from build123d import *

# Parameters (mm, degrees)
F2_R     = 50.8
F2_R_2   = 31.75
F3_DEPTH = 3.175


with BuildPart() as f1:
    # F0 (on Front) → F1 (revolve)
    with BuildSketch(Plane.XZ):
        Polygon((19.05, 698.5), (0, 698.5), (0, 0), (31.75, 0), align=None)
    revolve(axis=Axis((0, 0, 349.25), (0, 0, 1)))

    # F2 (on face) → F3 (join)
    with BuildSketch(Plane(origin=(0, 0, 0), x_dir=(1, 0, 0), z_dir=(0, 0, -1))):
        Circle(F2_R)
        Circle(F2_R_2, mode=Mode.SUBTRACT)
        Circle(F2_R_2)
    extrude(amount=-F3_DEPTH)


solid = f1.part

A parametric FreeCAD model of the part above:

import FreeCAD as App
import Part
import Sketcher
from FreeCAD import Vector
Q = App.Units.Quantity

doc = App.newDocument("Part")
body = doc.addObject("PartDesign::Body", "Body")

# Sketch on XZ plane
sketch1 = body.newObject("Sketcher::SketchObject", "Sketch")
sketch1.AttachmentSupport = (doc.getObject("XZ_Plane"), [""])
sketch1.MapMode = "FlatFace"
sketch1.addGeometry([
    Part.LineSegment(Vector(19, 698, 0), Vector(0, 698, 0)),
    Part.LineSegment(Vector(0, 698, 0), Vector(0, 0, 0)),
    Part.LineSegment(Vector(0, 0, 0), Vector(32, 0, 0)),
    Part.LineSegment(Vector(32, 0, 0), Vector(19, 698, 0)),
], False)
sketch1.addConstraint([
    Sketcher.Constraint("Coincident", 0, 2, 1, 1),
    Sketcher.Constraint("Coincident", 1, 2, 2, 1),
    Sketcher.Constraint("Coincident", 2, 2, 3, 1),
    Sketcher.Constraint("Coincident", 3, 2, 0, 1),
    Sketcher.Constraint("Horizontal", 0),
    Sketcher.Constraint("Vertical", 1),
    Sketcher.Constraint("Horizontal", 2),
    Sketcher.Constraint("Coincident", 1, 2, -1, 1),
    Sketcher.Constraint("DistanceY", 1, 2, 1, 1, Q("27.5 in")),
    Sketcher.Constraint("DistanceX", 0, 2, 0, 1, Q("0.75 in")),
    Sketcher.Constraint("DistanceX", 2, 1, 2, 2, Q("1.25 in")),
])
revolution = body.newObject("PartDesign::Revolution", "Revolution")
revolution.Profile = sketch1
revolution.ReferenceAxis = (sketch1, ["V_Axis"])
revolution.Angle = 360

# Sketch on XY plane
sketch2 = body.newObject("Sketcher::SketchObject", "Sketch001")
sketch2.AttachmentSupport = (doc.getObject("XY_Plane"), [""])
sketch2.MapMode = "FlatFace"
sketch2.addGeometry(Part.Circle(Vector(0, 0, 0), Vector(0, 0, 1), 51), False)
sketch2.addConstraint([
    Sketcher.Constraint("Coincident", 0, 3, -1, 1),
    Sketcher.Constraint("Diameter", 0, Q("4 in")),
])
pad1 = body.newObject("PartDesign::Pad", "Pad")
pad1.Profile = sketch2
pad1.Length = Q("0.125 in")

doc.recompute()
